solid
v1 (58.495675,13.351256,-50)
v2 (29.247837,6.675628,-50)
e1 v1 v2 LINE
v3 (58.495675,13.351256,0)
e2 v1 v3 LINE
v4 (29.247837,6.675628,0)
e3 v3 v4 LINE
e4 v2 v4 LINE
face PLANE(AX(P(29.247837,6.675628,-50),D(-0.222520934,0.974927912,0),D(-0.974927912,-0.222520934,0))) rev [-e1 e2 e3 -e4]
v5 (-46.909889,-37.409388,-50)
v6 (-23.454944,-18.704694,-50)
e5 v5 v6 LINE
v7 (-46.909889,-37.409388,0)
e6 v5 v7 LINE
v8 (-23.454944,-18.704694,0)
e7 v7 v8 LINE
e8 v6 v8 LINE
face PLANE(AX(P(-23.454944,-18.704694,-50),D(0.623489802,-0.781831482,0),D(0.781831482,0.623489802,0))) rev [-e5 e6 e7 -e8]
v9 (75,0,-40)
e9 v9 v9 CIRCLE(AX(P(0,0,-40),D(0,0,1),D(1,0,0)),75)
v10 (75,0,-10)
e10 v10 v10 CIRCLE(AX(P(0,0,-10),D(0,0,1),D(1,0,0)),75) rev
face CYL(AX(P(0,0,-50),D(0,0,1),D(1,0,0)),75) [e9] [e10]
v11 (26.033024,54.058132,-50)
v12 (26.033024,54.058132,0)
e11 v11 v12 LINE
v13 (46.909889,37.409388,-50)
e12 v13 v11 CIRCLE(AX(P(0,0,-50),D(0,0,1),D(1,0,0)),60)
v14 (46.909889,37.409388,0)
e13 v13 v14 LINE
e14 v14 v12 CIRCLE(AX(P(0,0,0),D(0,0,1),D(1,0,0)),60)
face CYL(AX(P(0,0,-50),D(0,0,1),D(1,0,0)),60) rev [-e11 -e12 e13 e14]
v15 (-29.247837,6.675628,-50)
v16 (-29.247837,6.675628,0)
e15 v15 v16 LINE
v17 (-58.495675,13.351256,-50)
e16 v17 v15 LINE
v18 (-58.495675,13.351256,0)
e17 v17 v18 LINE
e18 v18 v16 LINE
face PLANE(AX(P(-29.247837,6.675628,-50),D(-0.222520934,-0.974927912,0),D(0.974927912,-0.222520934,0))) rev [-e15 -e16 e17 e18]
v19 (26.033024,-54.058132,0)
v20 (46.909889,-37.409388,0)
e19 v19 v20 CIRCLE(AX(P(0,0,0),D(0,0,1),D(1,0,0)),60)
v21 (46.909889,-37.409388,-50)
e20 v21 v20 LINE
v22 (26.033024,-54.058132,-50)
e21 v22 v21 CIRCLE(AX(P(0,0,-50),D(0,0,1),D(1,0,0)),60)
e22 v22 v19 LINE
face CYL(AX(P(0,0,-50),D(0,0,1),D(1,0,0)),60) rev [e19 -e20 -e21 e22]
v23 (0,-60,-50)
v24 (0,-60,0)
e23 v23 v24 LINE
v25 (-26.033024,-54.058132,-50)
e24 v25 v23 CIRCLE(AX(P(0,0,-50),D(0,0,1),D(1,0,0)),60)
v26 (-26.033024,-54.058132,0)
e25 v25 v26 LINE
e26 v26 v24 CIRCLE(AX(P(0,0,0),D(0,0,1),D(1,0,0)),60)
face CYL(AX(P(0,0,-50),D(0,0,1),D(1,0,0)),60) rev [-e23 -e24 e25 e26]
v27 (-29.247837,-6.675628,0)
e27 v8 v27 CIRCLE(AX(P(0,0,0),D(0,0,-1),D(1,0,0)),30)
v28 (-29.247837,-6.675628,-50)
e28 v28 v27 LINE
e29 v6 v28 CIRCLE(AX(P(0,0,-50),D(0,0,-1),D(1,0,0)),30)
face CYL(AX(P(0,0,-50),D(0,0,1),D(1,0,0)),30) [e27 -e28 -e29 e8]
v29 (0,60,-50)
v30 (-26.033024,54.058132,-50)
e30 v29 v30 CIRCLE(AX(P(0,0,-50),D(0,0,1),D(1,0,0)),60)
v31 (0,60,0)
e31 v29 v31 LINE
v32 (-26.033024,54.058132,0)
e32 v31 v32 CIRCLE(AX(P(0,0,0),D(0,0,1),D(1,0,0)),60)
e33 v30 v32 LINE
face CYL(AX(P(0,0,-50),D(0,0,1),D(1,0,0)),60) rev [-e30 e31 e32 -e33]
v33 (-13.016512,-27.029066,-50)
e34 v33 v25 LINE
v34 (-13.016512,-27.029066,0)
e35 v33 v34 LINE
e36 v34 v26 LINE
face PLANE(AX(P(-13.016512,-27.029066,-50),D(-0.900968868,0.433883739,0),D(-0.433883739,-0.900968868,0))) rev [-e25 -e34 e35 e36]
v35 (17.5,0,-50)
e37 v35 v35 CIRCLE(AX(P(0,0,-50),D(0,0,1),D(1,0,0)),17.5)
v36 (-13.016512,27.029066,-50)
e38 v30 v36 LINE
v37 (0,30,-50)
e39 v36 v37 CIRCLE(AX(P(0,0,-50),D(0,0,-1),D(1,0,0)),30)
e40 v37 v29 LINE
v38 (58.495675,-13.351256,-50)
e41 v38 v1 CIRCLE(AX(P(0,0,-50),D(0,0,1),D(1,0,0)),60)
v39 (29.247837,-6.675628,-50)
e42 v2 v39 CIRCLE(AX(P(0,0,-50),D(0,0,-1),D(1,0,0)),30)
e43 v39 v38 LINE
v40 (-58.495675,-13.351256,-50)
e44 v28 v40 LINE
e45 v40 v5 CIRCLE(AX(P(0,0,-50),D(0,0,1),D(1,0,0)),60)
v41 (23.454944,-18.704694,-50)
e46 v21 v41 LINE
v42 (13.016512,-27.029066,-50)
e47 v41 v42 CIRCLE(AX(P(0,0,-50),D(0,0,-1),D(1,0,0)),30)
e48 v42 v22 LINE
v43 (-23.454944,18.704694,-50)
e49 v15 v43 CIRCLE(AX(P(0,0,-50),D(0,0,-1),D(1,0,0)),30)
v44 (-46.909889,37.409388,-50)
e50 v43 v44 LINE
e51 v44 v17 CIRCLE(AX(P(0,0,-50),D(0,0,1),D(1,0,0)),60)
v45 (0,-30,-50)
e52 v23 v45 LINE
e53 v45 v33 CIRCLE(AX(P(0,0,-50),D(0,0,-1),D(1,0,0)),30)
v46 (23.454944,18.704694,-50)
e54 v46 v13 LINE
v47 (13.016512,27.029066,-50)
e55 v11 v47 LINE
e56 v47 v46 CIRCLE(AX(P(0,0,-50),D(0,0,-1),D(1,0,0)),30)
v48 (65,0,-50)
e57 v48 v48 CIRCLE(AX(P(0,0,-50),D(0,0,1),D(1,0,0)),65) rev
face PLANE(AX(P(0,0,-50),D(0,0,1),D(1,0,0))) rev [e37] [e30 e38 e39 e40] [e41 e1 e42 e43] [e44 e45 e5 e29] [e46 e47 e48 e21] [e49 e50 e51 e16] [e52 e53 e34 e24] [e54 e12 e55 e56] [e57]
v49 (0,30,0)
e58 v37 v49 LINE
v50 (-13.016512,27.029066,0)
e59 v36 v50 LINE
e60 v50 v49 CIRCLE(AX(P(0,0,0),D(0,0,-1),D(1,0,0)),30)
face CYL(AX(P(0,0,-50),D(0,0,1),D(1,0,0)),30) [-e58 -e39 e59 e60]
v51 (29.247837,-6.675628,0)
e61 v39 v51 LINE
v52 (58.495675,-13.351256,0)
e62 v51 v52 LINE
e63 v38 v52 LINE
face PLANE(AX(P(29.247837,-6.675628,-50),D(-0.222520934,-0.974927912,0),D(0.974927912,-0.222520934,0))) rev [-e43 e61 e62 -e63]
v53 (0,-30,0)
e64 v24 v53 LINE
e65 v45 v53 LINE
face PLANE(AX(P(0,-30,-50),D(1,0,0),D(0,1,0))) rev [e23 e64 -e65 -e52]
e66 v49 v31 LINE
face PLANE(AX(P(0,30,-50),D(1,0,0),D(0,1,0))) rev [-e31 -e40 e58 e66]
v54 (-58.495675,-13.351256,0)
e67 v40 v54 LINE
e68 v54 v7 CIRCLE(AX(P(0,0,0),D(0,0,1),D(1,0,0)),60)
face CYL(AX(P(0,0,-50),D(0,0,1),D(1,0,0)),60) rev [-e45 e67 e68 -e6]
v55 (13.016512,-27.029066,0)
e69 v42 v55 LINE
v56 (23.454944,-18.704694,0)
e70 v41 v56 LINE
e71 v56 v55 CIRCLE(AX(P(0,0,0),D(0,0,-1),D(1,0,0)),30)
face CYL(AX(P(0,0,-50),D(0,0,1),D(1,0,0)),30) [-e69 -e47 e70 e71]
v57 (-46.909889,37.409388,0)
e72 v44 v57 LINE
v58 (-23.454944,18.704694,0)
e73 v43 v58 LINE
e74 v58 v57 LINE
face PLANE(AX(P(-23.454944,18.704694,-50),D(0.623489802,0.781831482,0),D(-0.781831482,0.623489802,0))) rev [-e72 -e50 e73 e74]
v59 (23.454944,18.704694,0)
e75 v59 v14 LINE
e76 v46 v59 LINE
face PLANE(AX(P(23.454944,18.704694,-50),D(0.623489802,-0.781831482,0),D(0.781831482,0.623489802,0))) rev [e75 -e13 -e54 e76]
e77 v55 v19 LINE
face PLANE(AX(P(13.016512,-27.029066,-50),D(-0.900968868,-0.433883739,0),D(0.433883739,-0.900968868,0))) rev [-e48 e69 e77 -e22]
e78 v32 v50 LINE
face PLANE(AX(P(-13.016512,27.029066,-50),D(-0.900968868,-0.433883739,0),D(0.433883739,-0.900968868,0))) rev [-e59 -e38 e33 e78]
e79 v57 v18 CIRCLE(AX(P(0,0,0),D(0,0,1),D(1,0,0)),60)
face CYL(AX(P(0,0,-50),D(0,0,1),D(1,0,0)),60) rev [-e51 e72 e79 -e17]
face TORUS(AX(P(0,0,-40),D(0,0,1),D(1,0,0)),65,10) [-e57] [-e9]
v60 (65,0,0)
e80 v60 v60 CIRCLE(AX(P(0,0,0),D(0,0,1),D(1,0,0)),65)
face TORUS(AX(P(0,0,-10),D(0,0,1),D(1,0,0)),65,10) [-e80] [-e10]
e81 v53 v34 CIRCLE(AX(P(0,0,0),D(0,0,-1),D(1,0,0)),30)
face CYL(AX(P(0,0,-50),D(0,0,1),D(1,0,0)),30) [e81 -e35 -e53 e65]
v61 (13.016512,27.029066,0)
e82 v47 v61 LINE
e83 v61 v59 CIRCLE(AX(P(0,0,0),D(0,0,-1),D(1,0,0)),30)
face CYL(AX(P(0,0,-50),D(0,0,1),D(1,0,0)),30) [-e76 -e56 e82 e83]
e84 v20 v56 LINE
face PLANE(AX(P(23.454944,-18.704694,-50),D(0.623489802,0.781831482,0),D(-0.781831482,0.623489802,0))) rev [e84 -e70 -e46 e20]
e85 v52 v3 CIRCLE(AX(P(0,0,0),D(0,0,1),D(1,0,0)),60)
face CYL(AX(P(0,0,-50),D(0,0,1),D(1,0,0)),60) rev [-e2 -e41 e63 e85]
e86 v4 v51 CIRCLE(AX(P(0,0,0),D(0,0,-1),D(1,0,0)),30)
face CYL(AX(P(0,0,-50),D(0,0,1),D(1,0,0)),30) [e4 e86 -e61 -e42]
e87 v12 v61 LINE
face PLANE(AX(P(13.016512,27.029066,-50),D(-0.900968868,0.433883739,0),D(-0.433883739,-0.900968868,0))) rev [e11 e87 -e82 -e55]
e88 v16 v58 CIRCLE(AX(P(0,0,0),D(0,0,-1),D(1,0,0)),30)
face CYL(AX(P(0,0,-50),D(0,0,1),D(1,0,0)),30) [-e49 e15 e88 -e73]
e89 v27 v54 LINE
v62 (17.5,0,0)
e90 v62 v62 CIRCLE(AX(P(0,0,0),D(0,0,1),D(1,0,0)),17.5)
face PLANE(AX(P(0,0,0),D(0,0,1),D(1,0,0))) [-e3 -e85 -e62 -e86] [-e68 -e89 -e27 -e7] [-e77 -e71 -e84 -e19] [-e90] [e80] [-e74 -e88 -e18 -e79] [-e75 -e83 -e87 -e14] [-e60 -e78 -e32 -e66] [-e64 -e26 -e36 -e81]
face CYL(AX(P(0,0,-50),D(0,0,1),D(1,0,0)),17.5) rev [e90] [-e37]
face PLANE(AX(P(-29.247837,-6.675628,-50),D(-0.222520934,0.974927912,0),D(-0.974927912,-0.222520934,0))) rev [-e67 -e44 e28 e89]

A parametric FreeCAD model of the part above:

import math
import FreeCAD as App
import Part
import Sketcher
from FreeCAD import Vector


def edges_at(feature, points):
    """Names of the edges that pass closest to the given points."""
    edges = feature.Shape.Edges
    near = lambda p: min(range(len(edges)), key=lambda i: edges[i].distToShape(Part.Vertex(*p))[0])
    return sorted({f"Edge{near(p) + 1}" for p in points})

doc = App.newDocument("Part")
body = doc.addObject("PartDesign::Body", "Body")

sketch1 = doc.addObject("Sketcher::SketchObject", "Sketch")
body.addObject(sketch1)
sketch1.AttachmentSupport = (doc.XY_Plane, [""])
sketch1.MapMode = "FlatFace"
sketch1.addGeometry(Part.Circle(Vector(0, 0, 0), Vector(0, 0, 1), 75), False)
sketch1.addGeometry(Part.ArcOfCircle(Part.Circle(Vector(0, 0, 0), Vector(0, 0, 1), 30), math.radians(-115.714286), math.radians(-90)), False)
sketch1.addGeometry(Part.LineSegment(Vector(0, -30, 0), Vector(0, -60, 0)), False)
sketch1.addGeometry(Part.ArcOfCircle(Part.Circle(Vector(0, 0, 0), Vector(0, 0, 1), 60), math.radians(-115.714286), math.radians(-90)), False)
sketch1.addGeometry(Part.LineSegment(Vector(-26.033024, -54.058132, 0), Vector(-13.016512, -27.029066, 0)), False)
sketch1.addGeometry(Part.ArcOfCircle(Part.Circle(Vector(0, 0, 0), Vector(0, 0, 1), 30), math.radians(-167.142857), math.radians(-141.428571)), False)
sketch1.addGeometry(Part.LineSegment(Vector(-23.454944, -18.704694, 0), Vector(-46.909889, -37.409388, 0)), False)
sketch1.addGeometry(Part.ArcOfCircle(Part.Circle(Vector(0, 0, 0), Vector(0, 0, 1), 60), math.radians(-167.142857), math.radians(-141.428571)), False)
sketch1.addGeometry(Part.LineSegment(Vector(-58.495675, -13.351256, 0), Vector(-29.247837, -6.675628, 0)), False)
sketch1.addGeometry(Part.ArcOfCircle(Part.Circle(Vector(0, 0, 0), Vector(0, 0, 1), 30), math.radians(-64.285714), math.radians(-38.571429)), False)
sketch1.addGeometry(Part.LineSegment(Vector(23.454944, -18.704694, 0), Vector(46.909889, -37.409388, 0)), False)
sketch1.addGeometry(Part.ArcOfCircle(Part.Circle(Vector(0, 0, 0), Vector(0, 0, 1), 60), math.radians(-64.285714), math.radians(-38.571429)), False)
sketch1.addGeometry(Part.LineSegment(Vector(26.033024, -54.058132, 0), Vector(13.016512, -27.029066, 0)), False)
sketch1.addGeometry(Part.ArcOfCircle(Part.Circle(Vector(0, 0, 0), Vector(0, 0, 1), 30), math.radians(-12.857143), math.radians(12.857143)), False)
sketch1.addGeometry(Part.LineSegment(Vector(29.247837, 6.675628, 0), Vector(58.495675, 13.351256, 0)), False)
sketch1.addGeometry(Part.ArcOfCircle(Part.Circle(Vector(0, 0, 0), Vector(0, 0, 1), 60), math.radians(-12.857143), math.radians(12.857143)), False)
sketch1.addGeometry(Part.LineSegment(Vector(58.495675, -13.351256, 0), Vector(29.247837, -6.675628, 0)), False)
sketch1.addGeometry(Part.ArcOfCircle(Part.Circle(Vector(0, 0, 0), Vector(0, 0, 1), 30), math.radians(141.428571), math.radians(167.142857)), False)
sketch1.addGeometry(Part.LineSegment(Vector(-29.247837, 6.675628, 0), Vector(-58.495675, 13.351256, 0)), False)
sketch1.addGeometry(Part.ArcOfCircle(Part.Circle(Vector(0, 0, 0), Vector(0, 0, 1), 60), math.radians(141.428571), math.radians(167.142857)), False)
sketch1.addGeometry(Part.LineSegment(Vector(-46.909889, 37.409388, 0), Vector(-23.454944, 18.704694, 0)), False)
sketch1.addGeometry(Part.LineSegment(Vector(0, 60, 0), Vector(0, 30, 0)), False)
sketch1.addGeometry(Part.ArcOfCircle(Part.Circle(Vector(0, 0, 0), Vector(0, 0, 1), 30), math.radians(90), math.radians(115.714286)), False)
sketch1.addGeometry(Part.LineSegment(Vector(-13.016512, 27.029066, 0), Vector(-26.033024, 54.058132, 0)), False)
sketch1.addGeometry(Part.ArcOfCircle(Part.Circle(Vector(0, 0, 0), Vector(0, 0, 1), 60), math.radians(90), math.radians(115.714286)), False)
sketch1.addGeometry(Part.ArcOfCircle(Part.Circle(Vector(0, 0, 0), Vector(0, 0, 1), 30), math.radians(38.571429), math.radians(64.285714)), False)
sketch1.addGeometry(Part.LineSegment(Vector(13.016512, 27.029066, 0), Vector(26.033024, 54.058132, 0)), False)
sketch1.addGeometry(Part.ArcOfCircle(Part.Circle(Vector(0, 0, 0), Vector(0, 0, 1), 60), math.radians(38.571429), math.radians(64.285714)), False)
sketch1.addGeometry(Part.LineSegment(Vector(46.909889, 37.409388, 0), Vector(23.454944, 18.704694, 0)), False)
sketch1.addConstraint(Sketcher.Constraint("Coincident", 1, 2, 2, 1))
sketch1.addConstraint(Sketcher.Constraint("Coincident", 2, 2, 3, 2))
sketch1.addConstraint(Sketcher.Constraint("Coincident", 3, 1, 4, 1))
sketch1.addConstraint(Sketcher.Constraint("Coincident", 4, 2, 1, 1))
sketch1.addConstraint(Sketcher.Constraint("Coincident", 5, 2, 6, 1))
sketch1.addConstraint(Sketcher.Constraint("Coincident", 6, 2, 7, 2))
sketch1.addConstraint(Sketcher.Constraint("Coincident", 7, 1, 8, 1))
sketch1.addConstraint(Sketcher.Constraint("Coincident", 8, 2, 5, 1))
sketch1.addConstraint(Sketcher.Constraint("Coincident", 9, 2, 10, 1))
sketch1.addConstraint(Sketcher.Constraint("Coincident", 10, 2, 11, 2))
sketch1.addConstraint(Sketcher.Constraint("Coincident", 11, 1, 12, 1))
sketch1.addConstraint(Sketcher.Constraint("Coincident", 12, 2, 9, 1))
sketch1.addConstraint(Sketcher.Constraint("Coincident", 13, 2, 14, 1))
sketch1.addConstraint(Sketcher.Constraint("Coincident", 14, 2, 15, 2))
sketch1.addConstraint(Sketcher.Constraint("Coincident", 15, 1, 16, 1))
sketch1.addConstraint(Sketcher.Constraint("Coincident", 16, 2, 13, 1))
sketch1.addConstraint(Sketcher.Constraint("Coincident", 17, 2, 18, 1))
sketch1.addConstraint(Sketcher.Constraint("Coincident", 18, 2, 19, 2))
sketch1.addConstraint(Sketcher.Constraint("Coincident", 19, 1, 20, 1))
sketch1.addConstraint(Sketcher.Constraint("Coincident", 20, 2, 17, 1))
sketch1.addConstraint(Sketcher.Constraint("Coincident", 21, 2, 22, 1))
sketch1.addConstraint(Sketcher.Constraint("Coincident", 22, 2, 23, 1))
sketch1.addConstraint(Sketcher.Constraint("Coincident", 23, 2, 24, 2))
sketch1.addConstraint(Sketcher.Constraint("Coincident", 24, 1, 21, 1))
sketch1.addConstraint(Sketcher.Constraint("Coincident", 25, 2, 26, 1))
sketch1.addConstraint(Sketcher.Constraint("Coincident", 26, 2, 27, 2))
sketch1.addConstraint(Sketcher.Constraint("Coincident", 27, 1, 28, 1))
sketch1.addConstraint(Sketcher.Constraint("Coincident", 28, 2, 25, 1))
sketch1.addConstraint(Sketcher.Constraint("Vertical", 2))
sketch1.addConstraint(Sketcher.Constraint("Vertical", 21))
sketch1.addConstraint(Sketcher.Constraint("Coincident", 0, 3, -1, 1))
sketch1.addConstraint(Sketcher.Constraint("Coincident", 1, 3, -1, 1))
sketch1.addConstraint(Sketcher.Constraint("Coincident", 3, 3, -1, 1))
sketch1.addConstraint(Sketcher.Constraint("Coincident", 5, 3, -1, 1))
sketch1.addConstraint(Sketcher.Constraint("Coincident", 7, 3, -1, 1))
sketch1.addConstraint(Sketcher.Constraint("Coincident", 9, 3, -1, 1))
sketch1.addConstraint(Sketcher.Constraint("Coincident", 11, 3, -1, 1))
sketch1.addConstraint(Sketcher.Constraint("Coincident", 13, 3, -1, 1))
sketch1.addConstraint(Sketcher.Constraint("Coincident", 15, 3, -1, 1))
sketch1.addConstraint(Sketcher.Constraint("Coincident", 17, 3, -1, 1))
sketch1.addConstraint(Sketcher.Constraint("Coincident", 19, 3, -1, 1))
sketch1.addConstraint(Sketcher.Constraint("Coincident", 22, 3, -1, 1))
sketch1.addConstraint(Sketcher.Constraint("Coincident", 24, 3, -1, 1))
sketch1.addConstraint(Sketcher.Constraint("Coincident", 25, 3, -1, 1))
sketch1.addConstraint(Sketcher.Constraint("Coincident", 27, 3, -1, 1))
sketch1.addConstraint(Sketcher.Constraint("Equal", 1, 5))
sketch1.addConstraint(Sketcher.Constraint("Equal", 3, 7))
sketch1.addConstraint(Sketcher.Constraint("Equal", 5, 9))
sketch1.addConstraint(Sketcher.Constraint("Equal", 7, 11))
sketch1.addConstraint(Sketcher.Constraint("Equal", 9, 13))
sketch1.addConstraint(Sketcher.Constraint("Equal", 11, 15))
sketch1.addConstraint(Sketcher.Constraint("Equal", 13, 17))
sketch1.addConstraint(Sketcher.Constraint("Equal", 15, 19))
sketch1.addConstraint(Sketcher.Constraint("Equal", 17, 22))
sketch1.addConstraint(Sketcher.Constraint("Equal", 19, 24))
sketch1.addConstraint(Sketcher.Constraint("Equal", 22, 25))
sketch1.addConstraint(Sketcher.Constraint("Equal", 24, 27))
sketch1.addConstraint(Sketcher.Constraint("PointOnObject", 1, 2, -2))
sketch1.addConstraint(Sketcher.Constraint("PointOnObject", 21, 2, -2))
sketch1.addConstraint(Sketcher.Constraint("Parallel", 8, 14))
sketch1.addConstraint(Sketcher.Constraint("Parallel", 16, 18))
sketch1.addConstraint(Sketcher.Constraint("Parallel", 10, 20))
sketch1.addConstraint(Sketcher.Constraint("Parallel", 12, 23))
sketch1.addConstraint(Sketcher.Constraint("Parallel", 4, 26))
sketch1.addConstraint(Sketcher.Constraint("Parallel", 6, 28))
sketch1.addConstraint(Sketcher.Constraint("Horizontal", 5, 2, 9, 2))
sketch1.addConstraint(Sketcher.Constraint("Horizontal", 6, 2, 10, 2))
sketch1.addConstraint(Sketcher.Constraint("Horizontal", 3, 1, 11, 1))
sketch1.addConstraint(Sketcher.Constraint("Horizontal", 4, 2, 12, 2))
sketch1.addConstraint(Sketcher.Constraint("Horizontal", 7, 1, 15, 1))
sketch1.addConstraint(Sketcher.Constraint("Horizontal", 8, 2, 16, 2))
sketch1.addConstraint(Sketcher.Constraint("Horizontal", 13, 2, 17, 2))
sketch1.addConstraint(Sketcher.Constraint("Horizontal", 22, 2, 25, 2))
sketch1.addConstraint(Sketcher.Constraint("Horizontal", 19, 1, 27, 1))
sketch1.addConstraint(Sketcher.Constraint("Vertical", 14, 2, 15, 1))
sketch1.addConstraint(Sketcher.Constraint("Vertical", 6, 2, 19, 1))
sketch1.addConstraint(Sketcher.Constraint("Vertical", 4, 2, 22, 2))
sketch1.addConstraint(Sketcher.Constraint("Diameter", 0, 150.0))
sketch1.addConstraint(Sketcher.Constraint("Radius", 1, 30.0))
sketch1.addConstraint(Sketcher.Constraint("Radius", 3, 60.0))
sketch1.addConstraint(Sketcher.Constraint("DistanceX", 6, 2, -1, 1, 46.909889))
sketch1.addConstraint(Sketcher.Constraint("DistanceY", 8, 2, -1, 1, 6.675628))
sketch1.addConstraint(Sketcher.Constraint("DistanceY", 4, 2, 5, 2, 8.324372))
sketch1.addConstraint(Sketcher.Constraint("DistanceX", 7, 1, 5, 2, 35.04073))
sketch1.addConstraint(Sketcher.Constraint("DistanceY", 5, 2, 7, 1, 5.353438))
sketch1.addConstraint(Sketcher.Constraint("DistanceX", 7, 1, 3, 1, 32.46265))
pad1 = doc.addObject("PartDesign::Pad", "Pad")
body.addObject(pad1)
pad1.Profile = sketch1
pad1.Length = 50
pad1.Reversed = True
doc.recompute()

fillet = doc.addObject("PartDesign::Fillet", "Fillet")
body.addObject(fillet)
fillet.Base = (pad1, edges_at(pad1, [(-75, 0, 0), (-75, 0, -50)]))
fillet.Radius = 10

sketch2 = doc.addObject("Sketcher::SketchObject", "Sketch001")
body.addObject(sketch2)
sketch2.AttachmentSupport = (doc.XY_Plane, [""])
sketch2.MapMode = "FlatFace"
sketch2.addGeometry(Part.Circle(Vector(0, 0, 0), Vector(0, 0, 1), 17.5), False)
sketch2.addConstraint(Sketcher.Constraint("Coincident", 0, 3, -1, 1))
sketch2.addConstraint(Sketcher.Constraint("Diameter", 0, 35.0))
pocket1 = doc.addObject("PartDesign::Pocket", "Pocket")
body.addObject(pocket1)
pocket1.Profile = sketch2
pocket1.Type = "ThroughAll"

doc.recompute()
